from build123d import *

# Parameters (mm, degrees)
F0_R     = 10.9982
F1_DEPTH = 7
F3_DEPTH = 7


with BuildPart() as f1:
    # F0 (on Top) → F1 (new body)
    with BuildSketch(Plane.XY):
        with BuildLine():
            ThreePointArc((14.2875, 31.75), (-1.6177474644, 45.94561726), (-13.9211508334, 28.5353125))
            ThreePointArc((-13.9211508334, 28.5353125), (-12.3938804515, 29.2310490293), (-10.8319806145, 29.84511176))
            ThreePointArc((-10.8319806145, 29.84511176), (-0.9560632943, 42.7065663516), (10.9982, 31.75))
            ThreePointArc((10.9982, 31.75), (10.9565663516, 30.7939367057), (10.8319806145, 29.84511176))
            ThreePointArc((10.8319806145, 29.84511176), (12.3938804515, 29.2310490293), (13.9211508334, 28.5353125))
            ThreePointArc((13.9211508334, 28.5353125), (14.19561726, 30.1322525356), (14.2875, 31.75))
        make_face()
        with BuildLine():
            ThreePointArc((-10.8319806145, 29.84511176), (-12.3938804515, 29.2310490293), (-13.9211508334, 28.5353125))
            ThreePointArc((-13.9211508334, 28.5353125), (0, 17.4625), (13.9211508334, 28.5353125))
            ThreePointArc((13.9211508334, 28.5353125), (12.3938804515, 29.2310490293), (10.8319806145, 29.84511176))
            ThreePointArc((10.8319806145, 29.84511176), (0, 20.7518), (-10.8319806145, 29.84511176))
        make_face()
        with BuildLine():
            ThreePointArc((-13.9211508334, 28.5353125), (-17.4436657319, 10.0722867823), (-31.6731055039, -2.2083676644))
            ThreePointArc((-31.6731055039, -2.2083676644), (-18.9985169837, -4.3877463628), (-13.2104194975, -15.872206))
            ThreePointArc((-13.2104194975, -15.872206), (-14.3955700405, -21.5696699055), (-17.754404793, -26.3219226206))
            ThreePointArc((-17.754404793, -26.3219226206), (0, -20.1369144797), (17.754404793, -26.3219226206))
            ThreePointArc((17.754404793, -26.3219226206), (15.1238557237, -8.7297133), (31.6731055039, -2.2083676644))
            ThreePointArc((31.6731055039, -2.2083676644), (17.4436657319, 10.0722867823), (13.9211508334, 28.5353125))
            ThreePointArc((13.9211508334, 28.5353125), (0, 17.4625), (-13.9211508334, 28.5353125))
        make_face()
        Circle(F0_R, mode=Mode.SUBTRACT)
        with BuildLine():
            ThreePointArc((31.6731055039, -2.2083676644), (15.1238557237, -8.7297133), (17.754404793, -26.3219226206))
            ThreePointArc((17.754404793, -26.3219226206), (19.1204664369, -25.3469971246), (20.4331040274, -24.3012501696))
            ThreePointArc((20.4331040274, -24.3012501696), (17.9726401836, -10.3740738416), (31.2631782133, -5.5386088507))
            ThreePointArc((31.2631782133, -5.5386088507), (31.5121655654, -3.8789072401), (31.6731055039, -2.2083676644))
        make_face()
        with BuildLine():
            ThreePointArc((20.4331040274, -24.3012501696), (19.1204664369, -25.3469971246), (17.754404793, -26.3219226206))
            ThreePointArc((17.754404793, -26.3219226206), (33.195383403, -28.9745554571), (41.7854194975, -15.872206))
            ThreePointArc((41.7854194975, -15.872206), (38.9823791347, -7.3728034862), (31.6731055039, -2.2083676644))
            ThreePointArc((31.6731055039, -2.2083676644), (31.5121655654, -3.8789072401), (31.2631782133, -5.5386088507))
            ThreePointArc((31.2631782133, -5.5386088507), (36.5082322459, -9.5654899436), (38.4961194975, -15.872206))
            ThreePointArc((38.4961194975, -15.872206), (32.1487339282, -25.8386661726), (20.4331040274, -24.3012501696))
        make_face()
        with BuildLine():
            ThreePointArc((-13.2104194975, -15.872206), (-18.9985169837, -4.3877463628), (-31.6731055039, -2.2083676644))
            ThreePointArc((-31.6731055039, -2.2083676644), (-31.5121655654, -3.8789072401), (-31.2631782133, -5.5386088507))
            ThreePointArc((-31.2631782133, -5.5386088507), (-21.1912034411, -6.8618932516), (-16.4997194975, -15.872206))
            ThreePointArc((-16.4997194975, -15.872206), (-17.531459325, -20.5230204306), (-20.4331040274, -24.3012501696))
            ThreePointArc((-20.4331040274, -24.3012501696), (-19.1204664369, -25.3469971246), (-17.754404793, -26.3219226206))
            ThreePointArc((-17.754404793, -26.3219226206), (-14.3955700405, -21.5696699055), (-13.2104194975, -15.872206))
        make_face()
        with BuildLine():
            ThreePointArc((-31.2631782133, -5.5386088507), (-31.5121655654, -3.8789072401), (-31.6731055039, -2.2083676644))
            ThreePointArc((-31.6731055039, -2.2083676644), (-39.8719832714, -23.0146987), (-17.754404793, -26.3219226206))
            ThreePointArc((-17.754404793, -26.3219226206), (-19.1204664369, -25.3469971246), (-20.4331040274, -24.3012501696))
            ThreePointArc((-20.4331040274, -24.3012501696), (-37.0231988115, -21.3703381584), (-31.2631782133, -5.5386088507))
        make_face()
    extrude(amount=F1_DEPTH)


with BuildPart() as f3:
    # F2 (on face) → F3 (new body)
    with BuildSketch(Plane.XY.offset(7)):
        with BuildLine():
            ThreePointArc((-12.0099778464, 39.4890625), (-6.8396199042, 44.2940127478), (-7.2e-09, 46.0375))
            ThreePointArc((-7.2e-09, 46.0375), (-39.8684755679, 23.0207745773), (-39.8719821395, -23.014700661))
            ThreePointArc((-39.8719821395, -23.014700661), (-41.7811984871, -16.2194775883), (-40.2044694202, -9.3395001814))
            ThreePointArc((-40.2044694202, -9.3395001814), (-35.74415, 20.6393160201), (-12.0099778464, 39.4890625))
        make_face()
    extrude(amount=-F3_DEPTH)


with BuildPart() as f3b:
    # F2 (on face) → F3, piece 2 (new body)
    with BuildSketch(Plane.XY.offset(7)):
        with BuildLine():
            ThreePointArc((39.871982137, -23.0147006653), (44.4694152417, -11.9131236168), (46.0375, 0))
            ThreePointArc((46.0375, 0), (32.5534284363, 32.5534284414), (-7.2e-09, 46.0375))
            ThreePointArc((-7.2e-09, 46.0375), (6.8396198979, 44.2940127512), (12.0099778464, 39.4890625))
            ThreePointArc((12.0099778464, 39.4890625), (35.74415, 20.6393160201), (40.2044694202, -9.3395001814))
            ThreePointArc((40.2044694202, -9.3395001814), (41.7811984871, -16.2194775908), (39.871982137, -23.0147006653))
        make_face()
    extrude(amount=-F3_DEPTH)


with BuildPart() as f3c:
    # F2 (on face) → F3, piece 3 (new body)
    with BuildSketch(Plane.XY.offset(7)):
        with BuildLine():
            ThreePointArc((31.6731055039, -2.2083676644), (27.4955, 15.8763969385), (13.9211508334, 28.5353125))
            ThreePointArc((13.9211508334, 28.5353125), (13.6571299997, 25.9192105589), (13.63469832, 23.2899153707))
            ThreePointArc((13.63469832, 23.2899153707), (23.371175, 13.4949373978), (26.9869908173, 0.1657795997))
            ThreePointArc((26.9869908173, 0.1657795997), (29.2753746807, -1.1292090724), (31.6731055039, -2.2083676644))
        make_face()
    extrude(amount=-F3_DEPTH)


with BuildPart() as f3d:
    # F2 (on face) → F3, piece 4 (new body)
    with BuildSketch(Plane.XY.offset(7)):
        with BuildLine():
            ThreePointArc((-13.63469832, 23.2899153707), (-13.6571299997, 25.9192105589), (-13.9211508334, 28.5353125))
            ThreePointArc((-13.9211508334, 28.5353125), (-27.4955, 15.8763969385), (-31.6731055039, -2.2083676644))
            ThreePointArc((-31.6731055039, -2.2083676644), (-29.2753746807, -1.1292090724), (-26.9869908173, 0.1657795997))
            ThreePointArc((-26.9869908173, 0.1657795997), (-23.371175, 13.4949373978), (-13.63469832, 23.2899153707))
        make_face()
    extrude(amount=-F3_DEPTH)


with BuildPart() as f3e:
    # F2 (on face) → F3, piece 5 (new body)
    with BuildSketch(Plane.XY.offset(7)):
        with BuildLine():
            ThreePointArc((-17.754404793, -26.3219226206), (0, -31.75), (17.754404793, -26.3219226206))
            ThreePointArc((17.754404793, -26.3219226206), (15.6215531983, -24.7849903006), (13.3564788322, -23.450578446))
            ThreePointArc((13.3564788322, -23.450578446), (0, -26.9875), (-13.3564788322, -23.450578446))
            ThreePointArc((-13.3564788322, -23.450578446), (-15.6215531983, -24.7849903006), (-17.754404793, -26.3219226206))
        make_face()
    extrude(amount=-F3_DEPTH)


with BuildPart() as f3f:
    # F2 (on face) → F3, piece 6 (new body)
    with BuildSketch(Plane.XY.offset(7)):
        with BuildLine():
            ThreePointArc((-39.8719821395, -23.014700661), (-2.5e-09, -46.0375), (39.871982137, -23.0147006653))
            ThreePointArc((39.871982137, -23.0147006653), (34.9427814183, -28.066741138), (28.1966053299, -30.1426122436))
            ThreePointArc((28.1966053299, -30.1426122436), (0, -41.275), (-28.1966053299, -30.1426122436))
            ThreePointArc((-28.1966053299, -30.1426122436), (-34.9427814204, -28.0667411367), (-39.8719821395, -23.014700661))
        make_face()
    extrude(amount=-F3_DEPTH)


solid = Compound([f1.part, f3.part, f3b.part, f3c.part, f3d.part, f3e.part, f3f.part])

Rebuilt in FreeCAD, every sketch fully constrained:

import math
import FreeCAD as App
import Part
import Sketcher
from FreeCAD import Vector
Q = App.Units.Quantity

doc = App.newDocument("Part")
body = doc.addObject("PartDesign::Body", "Body")

# Sketch on XY plane
sketch1 = doc.addObject("Sketcher::SketchObject", "Sketch")
body.addObject(sketch1)
sketch1.AttachmentSupport = (doc.XY_Plane, [""])
sketch1.MapMode = "FlatFace"
sketch1.addGeometry(Part.ArcOfCircle(Part.Circle(Vector(0, 31.75, 0), Vector(0, 0, 1), 14.2875), math.radians(0), math.radians(193.002878)), False)
sketch1.addGeometry(Part.ArcOfCircle(Part.Circle(Vector(-42.189616, 24.361044, 0), Vector(0, 0, 1), 28.575), math.radians(-68.405712), math.radians(8.39989)), False)
sketch1.addGeometry(Part.ArcOfCircle(Part.Circle(Vector(-27.497919, -15.872206, 0), Vector(0, 0, 1), 14.2875), math.radians(106.9913), math.radians(312.997056)), False)
sketch1.addGeometry(Part.ArcOfCircle(Part.Circle(Vector(0, -48.711914, 0), Vector(0, 0, 1), 28.575), math.radians(51.586932), math.radians(128.413068)), False)
sketch1.addGeometry(Part.ArcOfCircle(Part.Circle(Vector(27.497919, -15.872206, 0), Vector(0, 0, 1), 14.2875), math.radians(-132.997056), math.radians(0)), False)
sketch1.addGeometry(Part.ArcOfCircle(Part.Circle(Vector(27.497919, -15.872206, 0), Vector(0, 0, 1), 14.2875), math.radians(0), math.radians(73.0087)), False)
sketch1.addGeometry(Part.ArcOfCircle(Part.Circle(Vector(42.189616, 24.361044, 0), Vector(0, 0, 1), 28.575), math.radians(171.60011), math.radians(248.405712)), False)
sketch1.addGeometry(Part.ArcOfCircle(Part.Circle(Vector(0, 31.75, 0), Vector(0, 0, 1), 14.2875), math.radians(-13.002878), math.radians(0)), False)
sketch1.addGeometry(Part.ArcOfCircle(Part.Circle(Vector(-27.497919, -15.872206, 0), Vector(0, 0, 1), 10.9982), math.radians(0), math.radians(110.020252)), False)
sketch1.addGeometry(Part.ArcOfCircle(Part.Circle(Vector(-27.497919, -15.872206, 0), Vector(0, 0, 1), 10.9982), math.radians(-50.031896), math.radians(0)), False)
sketch1.addGeometry(Part.ArcOfCircle(Part.Circle(Vector(-27.497919, -15.872206, 0), Vector(0, 0, 1), 10.9982), math.radians(110.020252), math.radians(309.968104)), False)
sketch1.addGeometry(Part.ArcOfCircle(Part.Circle(Vector(27.497919, -15.872206, 0), Vector(0, 0, 1), 10.9982), math.radians(69.979748), math.radians(230.031896)), False)
sketch1.addGeometry(Part.ArcOfCircle(Part.Circle(Vector(27.497919, -15.872206, 0), Vector(0, 0, 1), 10.9982), math.radians(0), math.radians(69.979748)), False)
sketch1.addGeometry(Part.ArcOfCircle(Part.Circle(Vector(27.497919, -15.872206, 0), Vector(0, 0, 1), 10.9982), math.radians(-129.968104), math.radians(0)), False)
sketch1.addGeometry(Part.Circle(Vector(0, 0, 0), Vector(0, 0, 1), 10.9982), False)
sketch1.addGeometry(Part.ArcOfCircle(Part.Circle(Vector(0, 31.75, 0), Vector(0, 0, 1), 10.9982), math.radians(-9.973926), math.radians(0)), False)
sketch1.addGeometry(Part.ArcOfCircle(Part.Circle(Vector(0, 31.75, 0), Vector(0, 0, 1), 10.9982), math.radians(0), math.radians(350.026074)), False)
sketch1.addConstraint(Sketcher.Constraint("Coincident", 0, 2, 1, 2))
sketch1.addConstraint(Sketcher.Constraint("Coincident", 1, 1, 2, 1))
sketch1.addConstraint(Sketcher.Constraint("Coincident", 2, 2, 3, 2))
sketch1.addConstraint(Sketcher.Constraint("Coincident", 3, 1, 4, 1))
sketch1.addConstraint(Sketcher.Constraint("Tangent", 4, 2, 5, 1))
sketch1.addConstraint(Sketcher.Constraint("Coincident", 5, 2, 6, 2))
sketch1.addConstraint(Sketcher.Constraint("Coincident", 6, 1, 7, 1))
sketch1.addConstraint(Sketcher.Constraint("Tangent", 7, 2, 0, 1))
sketch1.addConstraint(Sketcher.Constraint("Tangent", 8, 1, 9, 2))
sketch1.addConstraint(Sketcher.Constraint("Tangent", 9, 1, 10, 2))
sketch1.addConstraint(Sketcher.Constraint("Tangent", 10, 1, 8, 2))
sketch1.addConstraint(Sketcher.Constraint("Tangent", 11, 1, 12, 2))
sketch1.addConstraint(Sketcher.Constraint("Tangent", 12, 1, 13, 2))
sketch1.addConstraint(Sketcher.Constraint("Tangent", 13, 1, 11, 2))
sketch1.addConstraint(Sketcher.Constraint("Tangent", 15, 1, 16, 2))
sketch1.addConstraint(Sketcher.Constraint("Coincident", 16, 1, 15, 2))
sketch1.addConstraint(Sketcher.Constraint("Coincident", 14, 3, -1, 1))
sketch1.addConstraint(Sketcher.Constraint("Coincident", 8, 3, 2, 3))
sketch1.addConstraint(Sketcher.Constraint("Coincident", 11, 3, 4, 3))
sketch1.addConstraint(Sketcher.Constraint("Coincident", 15, 3, 0, 3))
sketch1.addConstraint(Sketcher.Constraint("Equal", 0, 2))
sketch1.addConstraint(Sketcher.Constraint("Equal", 1, 3))
sketch1.addConstraint(Sketcher.Constraint("Equal", 2, 4))
sketch1.addConstraint(Sketcher.Constraint("Equal", 4, 5))
sketch1.addConstraint(Sketcher.Constraint("Equal", 3, 6))
sketch1.addConstraint(Sketcher.Constraint("Equal", 5, 7))
sketch1.addConstraint(Sketcher.Constraint("Equal", 10, 11))
sketch1.addConstraint(Sketcher.Constraint("Equal", 13, 14))
sketch1.addConstraint(Sketcher.Constraint("Equal", 14, 15))
sketch1.addConstraint(Sketcher.Constraint("Symmetric", 2, 3, 4, 3, -2))
sketch1.addConstraint(Sketcher.Constraint("Symmetric", 1, 3, 6, 3, -2))
sketch1.addConstraint(Sketcher.Constraint("PointOnObject", 0, 3, -2))
sketch1.addConstraint(Sketcher.Constraint("PointOnObject", 3, 3, -2))
sketch1.addConstraint(Sketcher.Constraint("Horizontal", 13, 3, 4, 2))
sketch1.addConstraint(Sketcher.Constraint("Horizontal", 16, 3, 7, 2))
sketch1.addConstraint(Sketcher.Constraint("Horizontal", 4, 2, 8, 1))
sketch1.addConstraint(Sketcher.Constraint("Horizontal", 10, 1, 11, 1))
sketch1.addConstraint(Sketcher.Constraint("Horizontal", 8, 1, 12, 1))
sketch1.addConstraint(Sketcher.Constraint("Horizontal", 9, 1, 13, 1))
sketch1.addConstraint(Sketcher.Constraint("Horizontal", 7, 2, 16, 1))
sketch1.addConstraint(Sketcher.Constraint("Diameter", 14, Q("0.866 in")))
sketch1.addConstraint(Sketcher.Constraint("Radius", 0, Q("0.5625 in")))
sketch1.addConstraint(Sketcher.Constraint("Radius", 1, Q("1.125 in")))
sketch1.addConstraint(Sketcher.Constraint("DistanceY", -1, 1, 0, 3, Q("1.25 in")))
sketch1.addConstraint(Sketcher.Constraint("DistanceX", 1, 1, 2, 2, Q("13.918701 mm")))
sketch1.addConstraint(Sketcher.Constraint("DistanceX", 0, 2, 6, 1, Q("27.842302 mm")))
sketch1.addConstraint(Sketcher.Constraint("DistanceX", 9, 1, 2, 2, Q("2.678699 mm")))
sketch1.addConstraint(Sketcher.Constraint("DistanceY", 6, 1, 15, 1, Q("1.309799 mm")))
sketch1.addConstraint(Sketcher.Constraint("DistanceX", 2, 3, -1, 1, Q("27.497919 mm")))
sketch1.addConstraint(Sketcher.Constraint("DistanceY", 9, 1, -1, 1, Q("24.30125 mm")))
sketch1.addConstraint(Sketcher.Constraint("DistanceX", 10, 1, -1, 1, Q("31.263178 mm")))
sketch1.addConstraint(Sketcher.Constraint("DistanceY", 10, 1, -1, 1, Q("5.538609 mm")))
pad1 = doc.addObject("PartDesign::Pad", "Pad")
body.addObject(pad1)
pad1.Profile = sketch1
pad1.Length = 7
body2 = doc.addObject("PartDesign::Body", "Body001")

# Sketch on XY plane
sketch2 = doc.addObject("Sketcher::SketchObject", "Sketch001")
body2.addObject(sketch2)
sketch2.AttachmentSupport = (doc.getObject("XY_Plane001"), [""])
sketch2.MapMode = "FlatFace"
sketch2.AttachmentOffset = App.Placement(Vector(0, 0, 7), App.Rotation())
sketch2.addGeometry(Part.ArcOfCircle(Part.Circle(Vector(0, 31.75, 0), Vector(0, 0, 1), 14.2875), math.radians(90), math.radians(147.202832)), False)
sketch2.addGeometry(Part.ArcOfCircle(Part.Circle(Vector(0, 0, 0), Vector(0, 0, 1), 46.0375), math.radians(90), math.radians(209.994181)), False)
sketch2.addGeometry(Part.ArcOfCircle(Part.Circle(Vector(-27.497919, -15.872206, 0), Vector(0, 0, 1), 14.2875), math.radians(152.791346), math.radians(209.994187)), False)
sketch2.addGeometry(Part.ArcOfCircle(Part.Circle(Vector(0, 0, 0), Vector(0, 0, 1), 41.275), math.radians(106.916315), math.radians(193.077863)), False)
sketch2.addConstraint(Sketcher.Constraint("Tangent", 0, 1, 1, 1))
sketch2.addConstraint(Sketcher.Constraint("Tangent", 1, 2, 2, 2))
sketch2.addConstraint(Sketcher.Constraint("Coincident", 2, 1, 3, 2))
sketch2.addConstraint(Sketcher.Constraint("Coincident", 3, 1, 0, 2))
sketch2.addConstraint(Sketcher.Constraint("Coincident", 1, 3, -1, 1))
sketch2.addConstraint(Sketcher.Constraint("Coincident", 3, 3, -1, 1))
sketch2.addConstraint(Sketcher.Constraint("Equal", 0, 2))
sketch2.addConstraint(Sketcher.Constraint("PointOnObject", 0, 3, -2))
sketch2.addConstraint(Sketcher.Constraint("Radius", 0, Q("0.5625 in")))
sketch2.addConstraint(Sketcher.Constraint("Radius", 1, Q("1.8125 in")))
sketch2.addConstraint(Sketcher.Constraint("Radius", 3, Q("1.625 in")))
sketch2.addConstraint(Sketcher.Constraint("DistanceY", 1, 2, -1, 1, Q("23.014701 mm")))
pad2 = doc.addObject("PartDesign::Pad", "Pad001")
body2.addObject(pad2)
pad2.Profile = sketch2
pad2.Length = 7
pad2.Reversed = True
body3 = doc.addObject("PartDesign::Body", "Body002")

# Sketch on XY plane
sketch3 = doc.addObject("Sketcher::SketchObject", "Sketch002")
body3.addObject(sketch3)
sketch3.AttachmentSupport = (doc.getObject("XY_Plane002"), [""])
sketch3.MapMode = "FlatFace"
sketch3.AttachmentOffset = App.Placement(Vector(0, 0, 7), App.Rotation())
sketch3.addGeometry(Part.ArcOfCircle(Part.Circle(Vector(0, 0, 0), Vector(0, 0, 1), 46.0375), math.radians(-29.994181), math.radians(0)), False)
sketch3.addGeometry(Part.ArcOfCircle(Part.Circle(Vector(0, 0, 0), Vector(0, 0, 1), 46.0375), math.radians(0), math.radians(90)), False)
sketch3.addGeometry(Part.ArcOfCircle(Part.Circle(Vector(0, 31.75, 0), Vector(0, 0, 1), 14.2875), math.radians(32.797168), math.radians(90)), False)
sketch3.addGeometry(Part.ArcOfCircle(Part.Circle(Vector(0, 0, 0), Vector(0, 0, 1), 41.275), math.radians(-13.077863), math.radians(73.083685)), False)
sketch3.addGeometry(Part.ArcOfCircle(Part.Circle(Vector(27.497919, -15.872206, 0), Vector(0, 0, 1), 14.2875), math.radians(-29.994187), math.radians(27.208654)), False)
sketch3.addConstraint(Sketcher.Constraint("Tangent", 0, 2, 1, 1))
sketch3.addConstraint(Sketcher.Constraint("Tangent", 1, 2, 2, 2))
sketch3.addConstraint(Sketcher.Constraint("Coincident", 2, 1, 3, 2))
sketch3.addConstraint(Sketcher.Constraint("Coincident", 3, 1, 4, 2))
sketch3.addConstraint(Sketcher.Constraint("Tangent", 4, 1, 0, 1))
sketch3.addConstraint(Sketcher.Constraint("Coincident", 0, 3, -1, 1))
sketch3.addConstraint(Sketcher.Constraint("Coincident", 3, 3, -1, 1))
sketch3.addConstraint(Sketcher.Constraint("Equal", 0, 1))
sketch3.addConstraint(Sketcher.Constraint("Equal", 2, 4))
sketch3.addConstraint(Sketcher.Constraint("PointOnObject", 2, 3, -2))
sketch3.addConstraint(Sketcher.Constraint("PointOnObject", 0, 2, -1))
sketch3.addConstraint(Sketcher.Constraint("Radius", 0, Q("1.8125 in")))
sketch3.addConstraint(Sketcher.Constraint("Radius", 2, Q("0.5625 in")))
sketch3.addConstraint(Sketcher.Constraint("Radius", 3, Q("1.625 in")))
sketch3.addConstraint(Sketcher.Constraint("DistanceY", 3, 1, -1, 1, Q("9.3395 mm")))
pad3 = doc.addObject("PartDesign::Pad", "Pad002")
body3.addObject(pad3)
pad3.Profile = sketch3
pad3.Length = 7
pad3.Reversed = True
body4 = doc.addObject("PartDesign::Body", "Body003")

# Sketch on XY plane
sketch4 = doc.addObject("Sketcher::SketchObject", "Sketch003")
body4.addObject(sketch4)
sketch4.AttachmentSupport = (doc.getObject("XY_Plane003"), [""])
sketch4.MapMode = "FlatFace"
sketch4.AttachmentOffset = App.Placement(Vector(0, 0, 7), App.Rotation())
sketch4.addGeometry(Part.ArcOfCircle(Part.Circle(Vector(0, 0, 0), Vector(0, 0, 1), 31.75), math.radians(-3.988422), math.radians(63.994244)), False)
sketch4.addGeometry(Part.ArcOfCircle(Part.Circle(Vector(42.189616, 24.361044, 0), Vector(0, 0, 1), 28.575), math.radians(171.60011), math.radians(182.148225)), False)
sketch4.addGeometry(Part.ArcOfCircle(Part.Circle(Vector(0, 0, 0), Vector(0, 0, 1), 26.9875), math.radians(0.35196), math.radians(59.653861)), False)
sketch4.addGeometry(Part.ArcOfCircle(Part.Circle(Vector(42.189616, 24.361044, 0), Vector(0, 0, 1), 28.575), math.radians(-122.142403), math.radians(-111.594288)), False)
sketch4.addConstraint(Sketcher.Constraint("Coincident", 0, 2, 1, 1))
sketch4.addConstraint(Sketcher.Constraint("Coincident", 1, 2, 2, 2))
sketch4.addConstraint(Sketcher.Constraint("Coincident", 2, 1, 3, 1))
sketch4.addConstraint(Sketcher.Constraint("Coincident", 3, 2, 0, 1))
sketch4.addConstraint(Sketcher.Constraint("Coincident", 0, 3, -1, 1))
sketch4.addConstraint(Sketcher.Constraint("Coincident", 2, 3, -1, 1))
sketch4.addConstraint(Sketcher.Constraint("Coincident", 3, 3, 1, 3))
sketch4.addConstraint(Sketcher.Constraint("Equal", 1, 3))
sketch4.addConstraint(Sketcher.Constraint("Radius", 0, Q("1.25 in")))
sketch4.addConstraint(Sketcher.Constraint("Radius", 1, Q("1.125 in")))
sketch4.addConstraint(Sketcher.Constraint("Radius", 2, Q("1.0625 in")))
sketch4.addConstraint(Sketcher.Constraint("DistanceX", -1, 1, 1, 2, Q("13.634698 mm")))
sketch4.addConstraint(Sketcher.Constraint("DistanceX", -1, 1, 0, 2, Q("13.921151 mm")))
pad4 = doc.addObject("PartDesign::Pad", "Pad003")
body4.addObject(pad4)
pad4.Profile = sketch4
pad4.Length = 7
pad4.Reversed = True
body5 = doc.addObject("PartDesign::Body", "Body004")

# Sketch on XY plane
sketch5 = doc.addObject("Sketcher::SketchObject", "Sketch004")
body5.addObject(sketch5)
sketch5.AttachmentSupport = (doc.getObject("XY_Plane004"), [""])
sketch5.MapMode = "FlatFace"
sketch5.AttachmentOffset = App.Placement(Vector(0, 0, 7), App.Rotation())
sketch5.addGeometry(Part.ArcOfCircle(Part.Circle(Vector(-42.189616, 24.361044, 0), Vector(0, 0, 1), 28.575), math.radians(-2.148225), math.radians(8.39989)), False)
sketch5.addGeometry(Part.ArcOfCircle(Part.Circle(Vector(0, 0, 0), Vector(0, 0, 1), 31.75), math.radians(116.005756), math.radians(183.988422)), False)
sketch5.addGeometry(Part.ArcOfCircle(Part.Circle(Vector(-42.189616, 24.361044, 0), Vector(0, 0, 1), 28.575), math.radians(-68.405712), math.radians(-57.857597)), False)
sketch5.addGeometry(Part.ArcOfCircle(Part.Circle(Vector(0, 0, 0), Vector(0, 0, 1), 26.9875), math.radians(120.346139), math.radians(179.64804)), False)
sketch5.addConstraint(Sketcher.Constraint("Coincident", 0, 2, 1, 1))
sketch5.addConstraint(Sketcher.Constraint("Coincident", 1, 2, 2, 1))
sketch5.addConstraint(Sketcher.Constraint("Coincident", 2, 2, 3, 2))
sketch5.addConstraint(Sketcher.Constraint("Coincident", 3, 1, 0, 1))
sketch5.addConstraint(Sketcher.Constraint("Coincident", 1, 3, -1, 1))
sketch5.addConstraint(Sketcher.Constraint("Coincident", 3, 3, -1, 1))
sketch5.addConstraint(Sketcher.Constraint("Coincident", 2, 3, 0, 3))
sketch5.addConstraint(Sketcher.Constraint("Equal", 0, 2))
sketch5.addConstraint(Sketcher.Constraint("Radius", 1, Q("1.25 in")))
sketch5.addConstraint(Sketcher.Constraint("Radius", 0, Q("1.125 in")))
sketch5.addConstraint(Sketcher.Constraint("Radius", 3, Q("1.0625 in")))
sketch5.addConstraint(Sketcher.Constraint("DistanceX", 3, 1, -1, 1, Q("13.634698 mm")))
sketch5.addConstraint(Sketcher.Constraint("DistanceX", 0, 2, -1, 1, Q("13.921151 mm")))
pad5 = doc.addObject("PartDesign::Pad", "Pad004")
body5.addObject(pad5)
pad5.Profile = sketch5
pad5.Length = 7
pad5.Reversed = True
body6 = doc.addObject("PartDesign::Body", "Body005")

# Sketch on XY plane
sketch6 = doc.addObject("Sketcher::SketchObject", "Sketch005")
body6.addObject(sketch6)
sketch6.AttachmentSupport = (doc.getObject("XY_Plane005"), [""])
sketch6.MapMode = "FlatFace"
sketch6.AttachmentOffset = App.Placement(Vector(0, 0, 7), App.Rotation())
sketch6.addGeometry(Part.ArcOfCircle(Part.Circle(Vector(0, 0, 0), Vector(0, 0, 1), 31.75), math.radians(-124.000066), math.radians(-55.999934)), False)
sketch6.addGeometry(Part.ArcOfCircle(Part.Circle(Vector(0, -48.711914, 0), Vector(0, 0, 1), 28.575), math.radians(51.586932), math.radians(62.133155)), False)
sketch6.addGeometry(Part.ArcOfCircle(Part.Circle(Vector(0, 0, 0), Vector(0, 0, 1), 26.9875), math.radians(-119.664048), math.radians(-60.335952)), False)
sketch6.addGeometry(Part.ArcOfCircle(Part.Circle(Vector(0, -48.711914, 0), Vector(0, 0, 1), 28.575), math.radians(117.866845), math.radians(128.413068)), False)
sketch6.addConstraint(Sketcher.Constraint("Coincident", 0, 2, 1, 1))
sketch6.addConstraint(Sketcher.Constraint("Coincident", 1, 2, 2, 2))
sketch6.addConstraint(Sketcher.Constraint("Coincident", 2, 1, 3, 1))
sketch6.addConstraint(Sketcher.Constraint("Coincident", 3, 2, 0, 1))
sketch6.addConstraint(Sketcher.Constraint("Coincident", 0, 3, -1, 1))
sketch6.addConstraint(Sketcher.Constraint("Coincident", 2, 3, -1, 1))
sketch6.addConstraint(Sketcher.Constraint("Coincident", 3, 3, 1, 3))
sketch6.addConstraint(Sketcher.Constraint("Equal", 1, 3))
sketch6.addConstraint(Sketcher.Constraint("PointOnObject", 1, 3, -2))
sketch6.addConstraint(Sketcher.Constraint("Radius", 0, Q("1.25 in")))
sketch6.addConstraint(Sketcher.Constraint("Radius", 1, Q("1.125 in")))
sketch6.addConstraint(Sketcher.Constraint("Radius", 2, Q("1.0625 in")))
sketch6.addConstraint(Sketcher.Constraint("DistanceX", -1, 1, 1, 2, Q("13.356479 mm")))
pad6 = doc.addObject("PartDesign::Pad", "Pad005")
body6.addObject(pad6)
pad6.Profile = sketch6
pad6.Length = 7
pad6.Reversed = True
body7 = doc.addObject("PartDesign::Body", "Body006")

# Sketch on XY plane
sketch7 = doc.addObject("Sketcher::SketchObject", "Sketch006")
body7.addObject(sketch7)
sketch7.AttachmentSupport = (doc.getObject("XY_Plane006"), [""])
sketch7.MapMode = "FlatFace"
sketch7.AttachmentOffset = App.Placement(Vector(0, 0, 7), App.Rotation())
sketch7.addGeometry(Part.ArcOfCircle(Part.Circle(Vector(0, 0, 0), Vector(0, 0, 1), 46.0375), math.radians(-150.005819), math.radians(-29.994181)), False)
sketch7.addGeometry(Part.ArcOfCircle(Part.Circle(Vector(27.497919, -15.872206, 0), Vector(0, 0, 1), 14.2875), math.radians(-87.19701), math.radians(-29.994187)), False)
sketch7.addGeometry(Part.ArcOfCircle(Part.Circle(Vector(0, 0, 0), Vector(0, 0, 1), 41.275), math.radians(-133.089507), math.radians(-46.910493)), False)
sketch7.addGeometry(Part.ArcOfCircle(Part.Circle(Vector(-27.497919, -15.872206, 0), Vector(0, 0, 1), 14.2875), math.radians(-150.005813), math.radians(-92.80299)), False)
sketch7.addConstraint(Sketcher.Constraint("Tangent", 0, 2, 1, 2))
sketch7.addConstraint(Sketcher.Constraint("Coincident", 1, 1, 2, 2))
sketch7.addConstraint(Sketcher.Constraint("Coincident", 2, 1, 3, 2))
sketch7.addConstraint(Sketcher.Constraint("Tangent", 3, 1, 0, 1))
sketch7.addConstraint(Sketcher.Constraint("Coincident", 0, 3, -1, 1))
sketch7.addConstraint(Sketcher.Constraint("Coincident", 2, 3, -1, 1))
sketch7.addConstraint(Sketcher.Constraint("Equal", 1, 3))
sketch7.addConstraint(Sketcher.Constraint("Horizontal", 1, 3, 3, 3))
sketch7.addConstraint(Sketcher.Constraint("Radius", 0, Q("1.8125 in")))
sketch7.addConstraint(Sketcher.Constraint("Radius", 1, Q("0.5625 in")))
sketch7.addConstraint(Sketcher.Constraint("Radius", 2, Q("1.625 in")))
sketch7.addConstraint(Sketcher.Constraint("DistanceY", 0, 2, -1, 1, Q("23.014701 mm")))
pad7 = doc.addObject("PartDesign::Pad", "Pad006")
body7.addObject(pad7)
pad7.Profile = sketch7
pad7.Length = 7
pad7.Reversed = True

doc.recompute()
